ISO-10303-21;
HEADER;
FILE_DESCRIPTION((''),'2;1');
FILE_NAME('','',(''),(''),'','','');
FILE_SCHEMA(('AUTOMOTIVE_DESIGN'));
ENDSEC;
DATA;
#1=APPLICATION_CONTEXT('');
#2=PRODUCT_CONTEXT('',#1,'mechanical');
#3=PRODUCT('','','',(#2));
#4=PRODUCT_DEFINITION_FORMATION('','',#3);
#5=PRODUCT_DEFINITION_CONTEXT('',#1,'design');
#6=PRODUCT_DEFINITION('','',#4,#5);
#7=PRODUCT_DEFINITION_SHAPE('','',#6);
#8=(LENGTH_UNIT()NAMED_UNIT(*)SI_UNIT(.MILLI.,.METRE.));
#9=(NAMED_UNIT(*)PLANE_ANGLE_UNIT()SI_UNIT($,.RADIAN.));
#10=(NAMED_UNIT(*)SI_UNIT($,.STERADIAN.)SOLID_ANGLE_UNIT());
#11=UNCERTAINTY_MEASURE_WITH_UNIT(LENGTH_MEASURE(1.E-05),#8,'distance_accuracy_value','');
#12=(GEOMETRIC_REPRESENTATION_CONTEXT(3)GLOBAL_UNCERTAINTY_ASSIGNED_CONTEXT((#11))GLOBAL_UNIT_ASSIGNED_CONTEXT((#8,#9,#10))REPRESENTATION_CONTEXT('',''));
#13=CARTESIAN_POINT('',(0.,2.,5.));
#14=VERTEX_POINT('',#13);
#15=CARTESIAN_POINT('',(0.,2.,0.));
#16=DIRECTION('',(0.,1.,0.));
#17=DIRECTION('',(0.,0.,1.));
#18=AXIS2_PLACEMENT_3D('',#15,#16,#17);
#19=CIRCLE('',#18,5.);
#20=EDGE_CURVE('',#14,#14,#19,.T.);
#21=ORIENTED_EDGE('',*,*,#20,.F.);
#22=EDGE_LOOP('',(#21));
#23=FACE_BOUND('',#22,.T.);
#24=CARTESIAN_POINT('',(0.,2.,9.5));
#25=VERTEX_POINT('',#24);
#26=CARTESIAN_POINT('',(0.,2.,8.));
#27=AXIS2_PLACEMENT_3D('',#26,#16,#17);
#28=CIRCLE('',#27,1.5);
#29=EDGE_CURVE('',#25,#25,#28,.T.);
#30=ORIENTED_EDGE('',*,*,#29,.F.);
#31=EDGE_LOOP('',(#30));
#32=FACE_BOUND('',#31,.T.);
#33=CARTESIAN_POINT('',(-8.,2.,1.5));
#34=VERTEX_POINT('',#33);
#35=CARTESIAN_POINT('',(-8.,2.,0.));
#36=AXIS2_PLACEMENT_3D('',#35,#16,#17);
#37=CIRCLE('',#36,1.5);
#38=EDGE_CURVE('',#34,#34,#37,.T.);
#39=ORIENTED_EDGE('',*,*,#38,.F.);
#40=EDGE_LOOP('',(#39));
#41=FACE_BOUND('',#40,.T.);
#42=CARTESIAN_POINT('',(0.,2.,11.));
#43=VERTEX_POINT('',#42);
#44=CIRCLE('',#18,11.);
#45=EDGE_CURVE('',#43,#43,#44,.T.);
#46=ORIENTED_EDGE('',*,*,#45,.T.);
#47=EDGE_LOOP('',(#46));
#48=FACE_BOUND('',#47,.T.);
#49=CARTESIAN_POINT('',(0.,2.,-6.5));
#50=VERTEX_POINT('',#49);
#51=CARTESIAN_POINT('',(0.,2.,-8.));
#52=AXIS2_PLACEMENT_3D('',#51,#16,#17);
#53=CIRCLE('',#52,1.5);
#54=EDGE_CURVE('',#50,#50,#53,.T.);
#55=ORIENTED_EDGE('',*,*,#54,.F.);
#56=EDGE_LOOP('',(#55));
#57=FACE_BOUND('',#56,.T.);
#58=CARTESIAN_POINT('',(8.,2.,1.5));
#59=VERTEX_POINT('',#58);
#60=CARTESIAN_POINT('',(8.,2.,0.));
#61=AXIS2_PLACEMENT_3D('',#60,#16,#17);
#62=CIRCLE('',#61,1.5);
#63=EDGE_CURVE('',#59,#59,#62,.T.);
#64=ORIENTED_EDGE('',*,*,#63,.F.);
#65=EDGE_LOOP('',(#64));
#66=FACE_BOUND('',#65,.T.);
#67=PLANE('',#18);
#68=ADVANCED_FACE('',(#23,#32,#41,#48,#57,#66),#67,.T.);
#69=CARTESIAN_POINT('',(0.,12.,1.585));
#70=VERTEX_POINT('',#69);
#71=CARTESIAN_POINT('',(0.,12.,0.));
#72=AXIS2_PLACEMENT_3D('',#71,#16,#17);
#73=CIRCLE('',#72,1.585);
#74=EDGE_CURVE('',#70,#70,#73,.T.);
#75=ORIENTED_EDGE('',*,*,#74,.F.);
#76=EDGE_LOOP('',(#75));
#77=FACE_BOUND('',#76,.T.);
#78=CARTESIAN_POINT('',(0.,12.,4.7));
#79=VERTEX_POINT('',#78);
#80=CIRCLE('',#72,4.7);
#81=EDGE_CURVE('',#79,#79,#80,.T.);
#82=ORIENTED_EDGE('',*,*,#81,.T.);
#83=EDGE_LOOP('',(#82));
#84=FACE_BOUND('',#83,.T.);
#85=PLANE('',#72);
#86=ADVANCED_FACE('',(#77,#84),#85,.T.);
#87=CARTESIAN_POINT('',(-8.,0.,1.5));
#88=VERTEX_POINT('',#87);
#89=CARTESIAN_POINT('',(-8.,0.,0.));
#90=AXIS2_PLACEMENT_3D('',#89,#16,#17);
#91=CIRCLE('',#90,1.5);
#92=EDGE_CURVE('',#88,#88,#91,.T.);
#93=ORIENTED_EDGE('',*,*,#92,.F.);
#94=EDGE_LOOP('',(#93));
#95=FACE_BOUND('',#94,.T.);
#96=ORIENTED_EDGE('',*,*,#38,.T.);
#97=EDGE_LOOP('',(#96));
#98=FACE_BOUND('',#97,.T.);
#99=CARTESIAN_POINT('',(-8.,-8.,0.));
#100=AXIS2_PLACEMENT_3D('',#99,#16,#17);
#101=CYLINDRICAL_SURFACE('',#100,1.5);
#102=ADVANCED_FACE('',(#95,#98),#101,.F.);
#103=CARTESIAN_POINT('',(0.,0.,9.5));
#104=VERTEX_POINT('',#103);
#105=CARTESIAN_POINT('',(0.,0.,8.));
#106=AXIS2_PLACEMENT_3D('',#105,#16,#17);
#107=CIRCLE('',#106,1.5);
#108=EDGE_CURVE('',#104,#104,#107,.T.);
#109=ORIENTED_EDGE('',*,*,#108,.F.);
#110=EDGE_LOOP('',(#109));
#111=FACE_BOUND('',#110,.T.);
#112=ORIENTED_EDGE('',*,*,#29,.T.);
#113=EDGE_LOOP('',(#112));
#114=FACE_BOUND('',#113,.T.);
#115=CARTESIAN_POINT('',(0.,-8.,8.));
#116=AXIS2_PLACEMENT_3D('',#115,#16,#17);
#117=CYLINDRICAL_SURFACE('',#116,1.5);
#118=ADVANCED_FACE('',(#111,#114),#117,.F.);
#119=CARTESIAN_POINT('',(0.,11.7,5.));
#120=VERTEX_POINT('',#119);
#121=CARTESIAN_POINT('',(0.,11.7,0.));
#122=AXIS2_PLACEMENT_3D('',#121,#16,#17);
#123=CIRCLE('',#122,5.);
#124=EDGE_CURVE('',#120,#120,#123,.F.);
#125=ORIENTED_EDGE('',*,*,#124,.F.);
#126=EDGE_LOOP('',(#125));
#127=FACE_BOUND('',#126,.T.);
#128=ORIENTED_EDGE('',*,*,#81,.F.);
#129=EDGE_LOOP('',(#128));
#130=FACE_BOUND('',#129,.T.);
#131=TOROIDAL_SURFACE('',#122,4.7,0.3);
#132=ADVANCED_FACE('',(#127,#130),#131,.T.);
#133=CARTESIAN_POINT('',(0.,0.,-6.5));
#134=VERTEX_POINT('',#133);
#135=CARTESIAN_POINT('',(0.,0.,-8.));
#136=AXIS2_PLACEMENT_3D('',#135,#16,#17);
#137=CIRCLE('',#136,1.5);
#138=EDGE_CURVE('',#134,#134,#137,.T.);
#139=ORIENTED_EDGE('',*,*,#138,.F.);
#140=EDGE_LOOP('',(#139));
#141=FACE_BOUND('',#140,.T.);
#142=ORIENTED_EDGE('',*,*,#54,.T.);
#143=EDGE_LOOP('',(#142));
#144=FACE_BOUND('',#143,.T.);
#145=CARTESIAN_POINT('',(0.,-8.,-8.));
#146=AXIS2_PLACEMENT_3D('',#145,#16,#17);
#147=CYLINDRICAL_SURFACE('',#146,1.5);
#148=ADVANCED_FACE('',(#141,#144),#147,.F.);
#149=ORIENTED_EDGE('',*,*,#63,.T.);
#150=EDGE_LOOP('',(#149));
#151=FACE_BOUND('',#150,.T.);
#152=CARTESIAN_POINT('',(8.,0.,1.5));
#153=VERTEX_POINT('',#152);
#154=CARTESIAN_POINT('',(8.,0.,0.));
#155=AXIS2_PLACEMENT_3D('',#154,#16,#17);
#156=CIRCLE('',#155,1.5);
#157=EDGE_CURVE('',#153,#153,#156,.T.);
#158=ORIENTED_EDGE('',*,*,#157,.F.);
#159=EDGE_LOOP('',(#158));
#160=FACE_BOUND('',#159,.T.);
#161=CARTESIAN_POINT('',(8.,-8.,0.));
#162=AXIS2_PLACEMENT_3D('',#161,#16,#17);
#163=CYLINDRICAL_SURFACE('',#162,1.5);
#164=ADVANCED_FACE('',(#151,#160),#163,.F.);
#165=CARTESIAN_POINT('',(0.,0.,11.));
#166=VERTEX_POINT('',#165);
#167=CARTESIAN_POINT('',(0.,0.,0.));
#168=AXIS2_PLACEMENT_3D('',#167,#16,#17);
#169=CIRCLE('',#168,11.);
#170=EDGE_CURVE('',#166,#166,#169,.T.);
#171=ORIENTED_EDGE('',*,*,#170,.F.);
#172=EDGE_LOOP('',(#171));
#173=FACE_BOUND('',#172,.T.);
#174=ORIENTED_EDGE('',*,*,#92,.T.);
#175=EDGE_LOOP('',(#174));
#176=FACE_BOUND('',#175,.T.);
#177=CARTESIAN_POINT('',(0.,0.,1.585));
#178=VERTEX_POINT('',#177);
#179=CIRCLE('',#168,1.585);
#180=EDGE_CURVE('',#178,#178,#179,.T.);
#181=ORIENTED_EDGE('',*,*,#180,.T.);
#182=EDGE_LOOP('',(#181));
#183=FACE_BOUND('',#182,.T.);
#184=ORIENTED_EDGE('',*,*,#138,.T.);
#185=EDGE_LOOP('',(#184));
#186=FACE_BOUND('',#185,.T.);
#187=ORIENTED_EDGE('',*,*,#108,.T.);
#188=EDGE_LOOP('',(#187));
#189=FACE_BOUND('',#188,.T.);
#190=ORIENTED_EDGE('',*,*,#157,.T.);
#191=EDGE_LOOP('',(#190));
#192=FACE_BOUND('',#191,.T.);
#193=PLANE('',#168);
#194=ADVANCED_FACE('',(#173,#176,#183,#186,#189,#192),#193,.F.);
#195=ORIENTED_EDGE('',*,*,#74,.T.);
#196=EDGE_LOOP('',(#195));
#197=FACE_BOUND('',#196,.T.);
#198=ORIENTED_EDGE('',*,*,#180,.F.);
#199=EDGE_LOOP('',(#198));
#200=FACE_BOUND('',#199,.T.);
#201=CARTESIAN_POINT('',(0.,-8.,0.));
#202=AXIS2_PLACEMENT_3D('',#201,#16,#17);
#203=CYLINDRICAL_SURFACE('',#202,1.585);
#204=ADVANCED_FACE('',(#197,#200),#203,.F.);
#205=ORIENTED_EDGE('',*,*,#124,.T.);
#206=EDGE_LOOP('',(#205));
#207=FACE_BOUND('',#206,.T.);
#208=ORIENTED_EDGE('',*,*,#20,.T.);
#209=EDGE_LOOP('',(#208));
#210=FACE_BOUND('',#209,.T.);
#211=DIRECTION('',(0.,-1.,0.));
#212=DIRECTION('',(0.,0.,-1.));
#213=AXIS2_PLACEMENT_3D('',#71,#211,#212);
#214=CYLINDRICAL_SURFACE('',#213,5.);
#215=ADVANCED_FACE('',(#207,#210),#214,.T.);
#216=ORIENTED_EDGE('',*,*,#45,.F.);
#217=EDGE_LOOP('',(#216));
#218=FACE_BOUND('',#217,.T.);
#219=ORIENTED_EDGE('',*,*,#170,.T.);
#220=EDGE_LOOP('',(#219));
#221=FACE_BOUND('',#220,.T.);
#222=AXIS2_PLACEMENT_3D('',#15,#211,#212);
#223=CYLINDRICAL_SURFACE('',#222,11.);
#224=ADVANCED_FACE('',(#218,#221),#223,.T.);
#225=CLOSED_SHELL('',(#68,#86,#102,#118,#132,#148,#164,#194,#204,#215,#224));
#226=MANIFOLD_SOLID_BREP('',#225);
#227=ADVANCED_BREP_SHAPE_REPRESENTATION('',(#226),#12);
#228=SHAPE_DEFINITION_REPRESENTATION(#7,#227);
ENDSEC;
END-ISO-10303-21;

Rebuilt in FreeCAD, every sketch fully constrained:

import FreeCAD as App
import Part
import Sketcher

V = App.Vector
Q = App.Units.Quantity


def edges_at(feature, points):
    """Names of the edges that pass closest to the given points."""
    edges = feature.Shape.Edges
    near = lambda p: min(range(len(edges)), key=lambda i: edges[i].distToShape(Part.Vertex(*p))[0])
    return sorted({f"Edge{near(p) + 1}" for p in points})

doc = App.newDocument("Part")
body = doc.addObject("PartDesign::Body", "Body")

sketch1 = body.newObject("Sketcher::SketchObject", "Sketch")
sketch1.AttachmentSupport = (doc.getObject("XZ_Plane"), [""])
sketch1.MapMode = "FlatFace"
sketch1.addGeometry(Part.Circle(V(0, 0, 0), V(0, 0, 1), 11), False)
sketch1.addConstraint(Sketcher.Constraint("Coincident", 0, 3, -1, 1))
sketch1.addConstraint(Sketcher.Constraint("Diameter", 0, Q("22 mm")))
pad1 = body.newObject("PartDesign::Pad", "Pad")
pad1.Profile = sketch1
pad1.Length = 2
pad1.Reversed = True

sketch2 = body.newObject("Sketcher::SketchObject", "Sketch001")
sketch2.AttachmentSupport = (doc.getObject("XZ_Plane"), [""])
sketch2.MapMode = "FlatFace"
sketch2.AttachmentOffset = App.Placement(V(0, 0, -2), App.Rotation())
sketch2.addGeometry(Part.Circle(V(0, 0, 0), V(0, 0, 1), 5), False)
sketch2.addConstraint(Sketcher.Constraint("Coincident", 0, 3, -1, 1))
sketch2.addConstraint(Sketcher.Constraint("Diameter", 0, Q("10 mm")))
pad2 = body.newObject("PartDesign::Pad", "Pad001")
pad2.Profile = sketch2
pad2.Length = 10
pad2.Reversed = True
doc.recompute()

fillet = body.newObject("PartDesign::Fillet", "Fillet")
fillet.Base = (pad2, edges_at(pad2, [(-5, 12, 0)]))
fillet.Radius = 0.3

sketch3 = body.newObject("Sketcher::SketchObject", "Sketch002")
sketch3.AttachmentSupport = (doc.getObject("XZ_Plane"), [""])
sketch3.MapMode = "FlatFace"
sketch3.AttachmentOffset = App.Placement(V(0, 0, -2), App.Rotation())
sketch3.addGeometry(Part.Circle(V(0, -8, 0), V(0, 0, 1), 1.5), False)
sketch3.addGeometry(Part.Circle(V(8, 0, 0), V(0, 0, 1), 1.5), False)
sketch3.addGeometry(Part.Circle(V(0, 8, 0), V(0, 0, 1), 1.5), False)
sketch3.addGeometry(Part.Circle(V(-8, 0, 0), V(0, 0, 1), 1.5), False)
sketch3.addConstraint(Sketcher.Constraint("Equal", 0, 1))
sketch3.addConstraint(Sketcher.Constraint("Equal", 1, 2))
sketch3.addConstraint(Sketcher.Constraint("Equal", 2, 3))
sketch3.addConstraint(Sketcher.Constraint("Symmetric", 0, 3, 2, 3, -1, 1))
sketch3.addConstraint(Sketcher.Constraint("Symmetric", 1, 3, 3, 3, -1, 1))
sketch3.addConstraint(Sketcher.Constraint("PointOnObject", 0, 3, -2))
sketch3.addConstraint(Sketcher.Constraint("PointOnObject", 1, 3, -1))
sketch3.addConstraint(Sketcher.Constraint("Diameter", 0, Q("3 mm")))
sketch3.addConstraint(Sketcher.Constraint("DistanceY", 0, 3, -1, 1, Q("8 mm")))
sketch3.addConstraint(Sketcher.Constraint("DistanceX", -1, 1, 1, 3, Q("8 mm")))
pocket1 = body.newObject("PartDesign::Pocket", "Pocket")
pocket1.Profile = sketch3
pocket1.Length = 10
pocket1.Reversed = True

sketch4 = body.newObject("Sketcher::SketchObject", "Sketch003")
sketch4.AttachmentSupport = (doc.getObject("XZ_Plane"), [""])
sketch4.MapMode = "FlatFace"
sketch4.AttachmentOffset = App.Placement(V(0, 0, -12), App.Rotation())
sketch4.addGeometry(Part.Circle(V(0, 0, 0), V(0, 0, 1), 1.6), False)
sketch4.addConstraint(Sketcher.Constraint("Coincident", 0, 3, -1, 1))
sketch4.addConstraint(Sketcher.Constraint("Diameter", 0, Q("3.17 mm")))
pocket2 = body.newObject("PartDesign::Pocket", "Pocket001")
pocket2.Profile = sketch4
pocket2.Length = 20
pocket2.Reversed = True

doc.recompute()
